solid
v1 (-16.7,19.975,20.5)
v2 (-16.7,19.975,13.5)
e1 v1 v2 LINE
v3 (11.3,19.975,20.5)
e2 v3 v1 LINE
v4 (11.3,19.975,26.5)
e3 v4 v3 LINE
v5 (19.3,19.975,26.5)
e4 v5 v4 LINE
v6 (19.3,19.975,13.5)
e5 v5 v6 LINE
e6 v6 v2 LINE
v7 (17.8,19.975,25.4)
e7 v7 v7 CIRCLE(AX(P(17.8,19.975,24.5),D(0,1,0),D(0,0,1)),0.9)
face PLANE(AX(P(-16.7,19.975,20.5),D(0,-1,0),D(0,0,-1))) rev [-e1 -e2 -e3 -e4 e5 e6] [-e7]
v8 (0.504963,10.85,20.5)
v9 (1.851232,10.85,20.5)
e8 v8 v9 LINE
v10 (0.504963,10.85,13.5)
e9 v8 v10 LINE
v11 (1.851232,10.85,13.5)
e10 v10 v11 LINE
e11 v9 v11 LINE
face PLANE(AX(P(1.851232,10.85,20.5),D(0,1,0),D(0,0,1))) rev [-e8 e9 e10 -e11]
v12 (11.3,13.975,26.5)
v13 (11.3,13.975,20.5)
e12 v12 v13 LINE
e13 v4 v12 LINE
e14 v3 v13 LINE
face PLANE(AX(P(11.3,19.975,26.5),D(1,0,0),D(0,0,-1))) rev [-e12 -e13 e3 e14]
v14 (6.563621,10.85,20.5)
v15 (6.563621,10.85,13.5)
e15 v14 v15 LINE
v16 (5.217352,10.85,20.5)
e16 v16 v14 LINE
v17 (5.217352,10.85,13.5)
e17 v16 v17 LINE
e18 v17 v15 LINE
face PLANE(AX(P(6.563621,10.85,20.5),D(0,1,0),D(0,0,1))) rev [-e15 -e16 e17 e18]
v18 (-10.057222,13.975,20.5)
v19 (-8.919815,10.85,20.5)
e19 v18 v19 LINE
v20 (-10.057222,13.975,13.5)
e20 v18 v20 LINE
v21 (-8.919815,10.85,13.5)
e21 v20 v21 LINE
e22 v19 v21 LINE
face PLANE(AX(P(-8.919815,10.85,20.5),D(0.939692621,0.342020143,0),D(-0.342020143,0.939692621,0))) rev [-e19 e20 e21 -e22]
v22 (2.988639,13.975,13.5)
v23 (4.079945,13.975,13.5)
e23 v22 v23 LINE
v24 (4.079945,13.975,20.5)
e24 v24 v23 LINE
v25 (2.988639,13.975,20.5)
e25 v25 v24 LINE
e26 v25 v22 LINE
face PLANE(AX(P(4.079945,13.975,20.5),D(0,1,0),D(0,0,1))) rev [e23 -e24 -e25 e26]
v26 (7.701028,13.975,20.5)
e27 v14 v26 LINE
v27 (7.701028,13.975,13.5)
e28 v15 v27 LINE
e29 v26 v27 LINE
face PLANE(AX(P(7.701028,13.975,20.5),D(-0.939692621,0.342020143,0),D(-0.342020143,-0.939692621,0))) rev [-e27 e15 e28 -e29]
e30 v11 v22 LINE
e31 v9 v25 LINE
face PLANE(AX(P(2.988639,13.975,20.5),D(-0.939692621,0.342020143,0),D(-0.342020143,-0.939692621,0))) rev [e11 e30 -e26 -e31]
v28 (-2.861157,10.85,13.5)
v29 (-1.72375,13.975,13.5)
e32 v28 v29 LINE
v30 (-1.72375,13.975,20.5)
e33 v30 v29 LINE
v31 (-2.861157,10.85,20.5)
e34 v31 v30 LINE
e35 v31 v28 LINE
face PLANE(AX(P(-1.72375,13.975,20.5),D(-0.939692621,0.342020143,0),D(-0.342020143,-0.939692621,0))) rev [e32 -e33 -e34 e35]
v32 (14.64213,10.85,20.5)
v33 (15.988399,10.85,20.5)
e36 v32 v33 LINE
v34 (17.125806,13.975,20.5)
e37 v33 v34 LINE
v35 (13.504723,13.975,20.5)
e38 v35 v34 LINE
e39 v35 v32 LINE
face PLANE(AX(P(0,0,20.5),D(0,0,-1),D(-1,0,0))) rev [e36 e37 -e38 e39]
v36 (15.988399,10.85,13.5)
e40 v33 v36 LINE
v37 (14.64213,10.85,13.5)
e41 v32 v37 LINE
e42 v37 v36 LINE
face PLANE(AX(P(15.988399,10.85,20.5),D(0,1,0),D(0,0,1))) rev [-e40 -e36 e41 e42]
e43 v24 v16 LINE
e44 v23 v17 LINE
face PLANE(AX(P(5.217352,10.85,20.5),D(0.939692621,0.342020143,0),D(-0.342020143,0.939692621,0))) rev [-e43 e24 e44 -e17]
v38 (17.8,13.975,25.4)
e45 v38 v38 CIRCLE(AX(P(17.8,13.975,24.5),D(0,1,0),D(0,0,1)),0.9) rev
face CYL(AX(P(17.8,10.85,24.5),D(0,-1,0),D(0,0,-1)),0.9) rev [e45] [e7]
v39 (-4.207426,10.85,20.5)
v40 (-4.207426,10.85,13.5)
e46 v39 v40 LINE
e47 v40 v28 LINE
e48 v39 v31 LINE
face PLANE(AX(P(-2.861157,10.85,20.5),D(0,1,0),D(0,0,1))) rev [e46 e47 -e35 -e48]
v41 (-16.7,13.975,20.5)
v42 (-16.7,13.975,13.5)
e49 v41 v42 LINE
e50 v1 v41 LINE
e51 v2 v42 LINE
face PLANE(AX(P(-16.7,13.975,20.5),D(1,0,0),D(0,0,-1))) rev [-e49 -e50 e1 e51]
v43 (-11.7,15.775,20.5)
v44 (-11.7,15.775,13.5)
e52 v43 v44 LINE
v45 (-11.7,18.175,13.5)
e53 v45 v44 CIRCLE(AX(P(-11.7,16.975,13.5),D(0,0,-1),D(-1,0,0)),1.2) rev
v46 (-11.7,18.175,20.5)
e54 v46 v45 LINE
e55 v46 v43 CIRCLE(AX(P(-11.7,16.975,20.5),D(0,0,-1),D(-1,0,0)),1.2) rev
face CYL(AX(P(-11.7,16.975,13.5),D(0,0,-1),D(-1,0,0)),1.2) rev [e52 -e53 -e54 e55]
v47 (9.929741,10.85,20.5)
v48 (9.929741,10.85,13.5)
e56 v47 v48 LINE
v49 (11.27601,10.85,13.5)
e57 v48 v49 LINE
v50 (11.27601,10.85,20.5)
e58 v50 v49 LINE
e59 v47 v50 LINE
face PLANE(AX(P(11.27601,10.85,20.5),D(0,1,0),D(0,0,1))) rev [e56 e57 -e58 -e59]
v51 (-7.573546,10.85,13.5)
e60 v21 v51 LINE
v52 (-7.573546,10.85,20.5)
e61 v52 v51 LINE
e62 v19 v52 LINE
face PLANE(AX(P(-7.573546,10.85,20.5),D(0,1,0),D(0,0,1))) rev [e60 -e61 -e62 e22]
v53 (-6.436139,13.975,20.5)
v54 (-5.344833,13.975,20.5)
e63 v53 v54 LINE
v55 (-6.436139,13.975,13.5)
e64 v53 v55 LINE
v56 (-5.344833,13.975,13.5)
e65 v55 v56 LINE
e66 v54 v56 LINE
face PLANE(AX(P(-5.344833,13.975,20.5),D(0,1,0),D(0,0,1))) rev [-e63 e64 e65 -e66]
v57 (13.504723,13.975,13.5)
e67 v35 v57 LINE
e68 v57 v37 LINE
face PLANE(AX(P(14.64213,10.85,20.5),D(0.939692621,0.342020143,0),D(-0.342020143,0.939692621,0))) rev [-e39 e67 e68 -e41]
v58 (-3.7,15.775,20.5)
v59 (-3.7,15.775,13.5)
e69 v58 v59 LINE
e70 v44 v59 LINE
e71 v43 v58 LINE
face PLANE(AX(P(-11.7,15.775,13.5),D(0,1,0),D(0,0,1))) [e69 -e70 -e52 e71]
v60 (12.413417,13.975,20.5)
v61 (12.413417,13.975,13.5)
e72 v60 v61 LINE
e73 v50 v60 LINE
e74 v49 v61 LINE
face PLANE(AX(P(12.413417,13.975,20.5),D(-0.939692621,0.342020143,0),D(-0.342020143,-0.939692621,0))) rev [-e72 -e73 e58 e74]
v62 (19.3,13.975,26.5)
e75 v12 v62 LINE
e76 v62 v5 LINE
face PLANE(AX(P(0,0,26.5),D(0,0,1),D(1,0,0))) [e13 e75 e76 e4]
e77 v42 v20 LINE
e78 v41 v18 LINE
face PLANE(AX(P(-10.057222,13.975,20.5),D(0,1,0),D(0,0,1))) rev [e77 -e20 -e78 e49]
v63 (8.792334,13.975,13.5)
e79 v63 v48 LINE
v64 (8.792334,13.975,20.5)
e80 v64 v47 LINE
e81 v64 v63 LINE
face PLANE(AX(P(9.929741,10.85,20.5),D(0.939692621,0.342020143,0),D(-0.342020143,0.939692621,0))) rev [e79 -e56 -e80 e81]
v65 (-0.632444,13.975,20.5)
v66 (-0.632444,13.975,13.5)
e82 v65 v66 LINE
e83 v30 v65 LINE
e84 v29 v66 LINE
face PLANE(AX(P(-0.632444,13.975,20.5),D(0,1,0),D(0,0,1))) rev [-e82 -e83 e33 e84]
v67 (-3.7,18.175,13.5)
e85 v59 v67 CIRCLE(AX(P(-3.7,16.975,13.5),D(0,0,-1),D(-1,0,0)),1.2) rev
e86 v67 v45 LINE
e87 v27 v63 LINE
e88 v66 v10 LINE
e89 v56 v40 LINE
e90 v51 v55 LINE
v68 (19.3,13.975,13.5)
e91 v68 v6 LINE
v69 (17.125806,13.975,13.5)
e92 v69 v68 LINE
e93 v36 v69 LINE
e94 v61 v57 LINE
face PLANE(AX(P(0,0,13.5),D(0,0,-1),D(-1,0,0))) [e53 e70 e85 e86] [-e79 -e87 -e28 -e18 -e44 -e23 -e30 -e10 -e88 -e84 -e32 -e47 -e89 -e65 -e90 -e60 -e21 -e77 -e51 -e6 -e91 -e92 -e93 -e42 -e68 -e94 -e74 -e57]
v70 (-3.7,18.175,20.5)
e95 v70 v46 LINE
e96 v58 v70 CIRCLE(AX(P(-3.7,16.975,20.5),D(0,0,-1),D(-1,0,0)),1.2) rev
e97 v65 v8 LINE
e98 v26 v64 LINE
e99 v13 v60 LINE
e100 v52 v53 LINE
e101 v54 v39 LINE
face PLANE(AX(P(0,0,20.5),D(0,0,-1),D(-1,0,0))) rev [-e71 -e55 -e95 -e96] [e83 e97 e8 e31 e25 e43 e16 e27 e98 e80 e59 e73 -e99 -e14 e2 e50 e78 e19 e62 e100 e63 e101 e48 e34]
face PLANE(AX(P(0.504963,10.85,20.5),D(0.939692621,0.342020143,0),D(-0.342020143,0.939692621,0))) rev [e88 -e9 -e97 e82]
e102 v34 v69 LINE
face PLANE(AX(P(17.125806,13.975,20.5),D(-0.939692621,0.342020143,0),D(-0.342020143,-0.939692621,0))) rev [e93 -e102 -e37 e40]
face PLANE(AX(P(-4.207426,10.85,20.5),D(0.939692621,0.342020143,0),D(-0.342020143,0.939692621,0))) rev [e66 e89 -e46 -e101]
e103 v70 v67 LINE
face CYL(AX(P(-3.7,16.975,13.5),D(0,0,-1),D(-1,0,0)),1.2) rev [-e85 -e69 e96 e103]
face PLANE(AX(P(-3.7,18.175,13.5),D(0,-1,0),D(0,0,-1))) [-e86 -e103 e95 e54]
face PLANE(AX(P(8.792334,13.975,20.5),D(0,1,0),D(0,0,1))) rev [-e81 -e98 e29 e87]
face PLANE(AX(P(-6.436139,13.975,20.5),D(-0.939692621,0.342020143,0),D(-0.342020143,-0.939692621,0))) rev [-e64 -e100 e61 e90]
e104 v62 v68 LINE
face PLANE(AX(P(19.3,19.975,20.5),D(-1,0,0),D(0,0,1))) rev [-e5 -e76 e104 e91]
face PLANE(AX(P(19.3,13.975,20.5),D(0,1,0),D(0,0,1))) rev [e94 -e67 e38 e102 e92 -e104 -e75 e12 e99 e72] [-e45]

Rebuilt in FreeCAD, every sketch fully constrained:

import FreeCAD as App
import Part
import Sketcher

V = App.Vector
Q = App.Units.Quantity

doc = App.newDocument("Part")
params = doc.addObject("Spreadsheet::Sheet", "Params")
for row, (alias, value) in enumerate([
    ("sketch1_width", "36 mm"),
    ("sketch1_height", "6 mm"),
    ("pad1_length", "7 mm"),
    ("sketch2_width", "8 mm"),
    ("sketch2_height", "6 mm"),
    ("pad2_length", "6 mm"),
    ("sketch3_diameter", "1.8 mm"),
    ("sketch4_width", "8 mm"),
    ("sketch4_height", "2.4 mm"),
    ("sketch5_diameter", "2.4 mm"),
], start=1):
    params.set(f"A{row}", alias)
    params.set(f"B{row}", "=" + value)
    params.setAlias(f"B{row}", alias)

body = doc.addObject("PartDesign::Body", "Body")

sketch1 = doc.addObject("Sketcher::SketchObject", "Sketch")
body.addObject(sketch1)
sketch1.AttachmentSupport = (doc.XY_Plane, [""])
sketch1.MapMode = "FlatFace"
sketch1.AttachmentOffset = App.Placement(V(0, 0, 13.5), App.Rotation())
sketch1.addGeometry([
    Part.LineSegment(V(19.3, 20, 0), V(-16.7, 20, 0)),
    Part.LineSegment(V(-16.7, 20, 0), V(-16.7, 14, 0)),
    Part.LineSegment(V(-16.7, 14, 0), V(-10.1, 14, 0)),
    Part.LineSegment(V(-10.1, 14, 0), V(-8.9, 10.8, 0)),
    Part.LineSegment(V(-8.9, 10.8, 0), V(-7.6, 10.8, 0)),
    Part.LineSegment(V(-7.6, 10.8, 0), V(-6.4, 14, 0)),
    Part.LineSegment(V(-6.4, 14, 0), V(-5.3, 14, 0)),
    Part.LineSegment(V(-5.3, 14, 0), V(-4.2, 10.8, 0)),
    Part.LineSegment(V(-4.2, 10.8, 0), V(-2.9, 10.8, 0)),
    Part.LineSegment(V(-2.9, 10.8, 0), V(-1.7, 14, 0)),
    Part.LineSegment(V(-1.7, 14, 0), V(-0.6, 14, 0)),
    Part.LineSegment(V(-0.6, 14, 0), V(0.5, 10.8, 0)),
    Part.LineSegment(V(0.5, 10.8, 0), V(1.9, 10.8, 0)),
    Part.LineSegment(V(1.9, 10.8, 0), V(3, 14, 0)),
    Part.LineSegment(V(3, 14, 0), V(4.1, 14, 0)),
    Part.LineSegment(V(4.1, 14, 0), V(5.2, 10.8, 0)),
    Part.LineSegment(V(5.2, 10.8, 0), V(6.6, 10.8, 0)),
    Part.LineSegment(V(6.6, 10.8, 0), V(7.7, 14, 0)),
    Part.LineSegment(V(7.7, 14, 0), V(8.8, 14, 0)),
    Part.LineSegment(V(8.8, 14, 0), V(9.9, 10.8, 0)),
    Part.LineSegment(V(9.9, 10.8, 0), V(11.3, 10.8, 0)),
    Part.LineSegment(V(11.3, 10.8, 0), V(12.4, 14, 0)),
    Part.LineSegment(V(12.4, 14, 0), V(13.5, 14, 0)),
    Part.LineSegment(V(13.5, 14, 0), V(14.6, 10.8, 0)),
    Part.LineSegment(V(14.6, 10.8, 0), V(16, 10.8, 0)),
    Part.LineSegment(V(16, 10.8, 0), V(17.1, 14, 0)),
    Part.LineSegment(V(17.1, 14, 0), V(19.3, 14, 0)),
    Part.LineSegment(V(19.3, 14, 0), V(19.3, 20, 0)),
], False)
sketch1.addConstraint([
    Sketcher.Constraint("Coincident", 0, 2, 1, 1),
    Sketcher.Constraint("Coincident", 1, 2, 2, 1),
    Sketcher.Constraint("Coincident", 2, 2, 3, 1),
    Sketcher.Constraint("Coincident", 3, 2, 4, 1),
    Sketcher.Constraint("Coincident", 4, 2, 5, 1),
    Sketcher.Constraint("Coincident", 5, 2, 6, 1),
    Sketcher.Constraint("Coincident", 6, 2, 7, 1),
    Sketcher.Constraint("Coincident", 7, 2, 8, 1),
    Sketcher.Constraint("Coincident", 8, 2, 9, 1),
    Sketcher.Constraint("Coincident", 9, 2, 10, 1),
    Sketcher.Constraint("Coincident", 10, 2, 11, 1),
    Sketcher.Constraint("Coincident", 11, 2, 12, 1),
    Sketcher.Constraint("Coincident", 12, 2, 13, 1),
    Sketcher.Constraint("Coincident", 13, 2, 14, 1),
    Sketcher.Constraint("Coincident", 14, 2, 15, 1),
    Sketcher.Constraint("Coincident", 15, 2, 16, 1),
    Sketcher.Constraint("Coincident", 16, 2, 17, 1),
    Sketcher.Constraint("Coincident", 17, 2, 18, 1),
    Sketcher.Constraint("Coincident", 18, 2, 19, 1),
    Sketcher.Constraint("Coincident", 19, 2, 20, 1),
    Sketcher.Constraint("Coincident", 20, 2, 21, 1),
    Sketcher.Constraint("Coincident", 21, 2, 22, 1),
    Sketcher.Constraint("Coincident", 22, 2, 23, 1),
    Sketcher.Constraint("Coincident", 23, 2, 24, 1),
    Sketcher.Constraint("Coincident", 24, 2, 25, 1),
    Sketcher.Constraint("Coincident", 25, 2, 26, 1),
    Sketcher.Constraint("Coincident", 26, 2, 27, 1),
    Sketcher.Constraint("Coincident", 27, 2, 0, 1),
    Sketcher.Constraint("Horizontal", 0),
    Sketcher.Constraint("Vertical", 1),
    Sketcher.Constraint("Horizontal", 2),
    Sketcher.Constraint("Horizontal", 4),
    Sketcher.Constraint("Horizontal", 6),
    Sketcher.Constraint("Horizontal", 8),
    Sketcher.Constraint("Horizontal", 10),
    Sketcher.Constraint("Horizontal", 12),
    Sketcher.Constraint("Horizontal", 14),
    Sketcher.Constraint("Horizontal", 16),
    Sketcher.Constraint("Horizontal", 18),
    Sketcher.Constraint("Horizontal", 20),
    Sketcher.Constraint("Horizontal", 22),
    Sketcher.Constraint("Horizontal", 24),
    Sketcher.Constraint("Horizontal", 26),
    Sketcher.Constraint("Vertical", 27),
    Sketcher.Constraint("Parallel", 3, 7),
    Sketcher.Constraint("Parallel", 5, 9),
    Sketcher.Constraint("Parallel", 7, 11),
    Sketcher.Constraint("Parallel", 9, 13),
    Sketcher.Constraint("Parallel", 11, 15),
    Sketcher.Constraint("Parallel", 13, 17),
    Sketcher.Constraint("Parallel", 15, 19),
    Sketcher.Constraint("Parallel", 17, 21),
    Sketcher.Constraint("Parallel", 19, 23),
    Sketcher.Constraint("Parallel", 21, 25),
    Sketcher.Constraint("Horizontal", 2, 2, 5, 2),
    Sketcher.Constraint("Horizontal", 4, 2, 7, 2),
    Sketcher.Constraint("Horizontal", 6, 2, 9, 2),
    Sketcher.Constraint("Horizontal", 8, 2, 11, 2),
    Sketcher.Constraint("Horizontal", 10, 2, 13, 2),
    Sketcher.Constraint("Horizontal", 12, 2, 15, 2),
    Sketcher.Constraint("Horizontal", 14, 2, 17, 2),
    Sketcher.Constraint("Horizontal", 16, 2, 19, 2),
    Sketcher.Constraint("Horizontal", 18, 2, 21, 2),
    Sketcher.Constraint("Horizontal", 20, 2, 23, 2),
    Sketcher.Constraint("Horizontal", 22, 2, 25, 2),
    Sketcher.Constraint("Equal", 4, 8),
    Sketcher.Constraint("Equal", 6, 10),
    Sketcher.Constraint("Equal", 8, 12),
    Sketcher.Constraint("Equal", 10, 14),
    Sketcher.Constraint("Equal", 12, 16),
    Sketcher.Constraint("Equal", 14, 18),
    Sketcher.Constraint("Equal", 16, 20),
    Sketcher.Constraint("Equal", 18, 22),
    Sketcher.Constraint("Equal", 20, 24),
    Sketcher.Constraint("Equal", 3, 5),
    Sketcher.Constraint("DistanceX", 0, 2, 0, 1, 36.0),
    Sketcher.Constraint("DistanceY", 1, 2, 1, 1, 6.0),
    Sketcher.Constraint("Angle", 3, Q("-70 deg")),
    Sketcher.Constraint("DistanceX", 0, 2, -1, 1, 16.7),
    Sketcher.Constraint("DistanceY", -1, 1, 3, 2, 10.85),
    Sketcher.Constraint("DistanceY", -1, 1, 0, 2, 19.975),
    Sketcher.Constraint("DistanceX", 4, 1, 4, 2, 1.346269),
    Sketcher.Constraint("DistanceX", -1, 1, 24, 2, 15.988399),
    Sketcher.Constraint("DistanceX", 2, 1, 2, 2, 6.642778),
])
sketch1.setExpression("Constraints[75]", "Params.sketch1_width")
sketch1.setExpression("Constraints[76]", "Params.sketch1_height")
pad1 = doc.addObject("PartDesign::Pad", "Pad")
body.addObject(pad1)
pad1.Profile = sketch1
pad1.setExpression("Length", "Params.pad1_length")

sketch2 = doc.addObject("Sketcher::SketchObject", "Sketch001")
body.addObject(sketch2)
sketch2.AttachmentSupport = (doc.XY_Plane, [""])
sketch2.MapMode = "FlatFace"
sketch2.AttachmentOffset = App.Placement(V(0, 0, 20.5), App.Rotation())
sketch2.addGeometry([
    Part.LineSegment(V(11, 20, 0), V(11, 14, 0)),
    Part.LineSegment(V(11, 14, 0), V(19, 14, 0)),
    Part.LineSegment(V(19, 14, 0), V(19, 20, 0)),
    Part.LineSegment(V(19, 20, 0), V(11, 20, 0)),
], False)
sketch2.addConstraint([
    Sketcher.Constraint("Coincident", 0, 2, 1, 1),
    Sketcher.Constraint("Coincident", 1, 2, 2, 1),
    Sketcher.Constraint("Coincident", 2, 2, 3, 1),
    Sketcher.Constraint("Coincident", 3, 2, 0, 1),
    Sketcher.Constraint("Vertical", 0),
    Sketcher.Constraint("Horizontal", 1),
    Sketcher.Constraint("Vertical", 2),
    Sketcher.Constraint("Horizontal", 3),
    Sketcher.Constraint("DistanceX", 1, 1, 1, 2, 8.0),
    Sketcher.Constraint("DistanceY", 0, 2, 0, 1, 6.0),
    Sketcher.Constraint("DistanceX", -1, 1, 0, 2, 11.3),
    Sketcher.Constraint("DistanceY", -1, 1, 0, 2, 13.975),
])
sketch2.setExpression("Constraints[8]", "Params.sketch2_width")
sketch2.setExpression("Constraints[9]", "Params.sketch2_height")
pad2 = doc.addObject("PartDesign::Pad", "Pad001")
body.addObject(pad2)
pad2.Profile = sketch2
pad2.setExpression("Length", "Params.pad2_length")

sketch3 = doc.addObject("Sketcher::SketchObject", "Sketch002")
body.addObject(sketch3)
sketch3.AttachmentSupport = (doc.XZ_Plane, [""])
sketch3.MapMode = "FlatFace"
sketch3.addGeometry(Part.Circle(V(17.8, 24.5, 0), V(0, 0, 1), 0.9), False)
sketch3.addConstraint([
    Sketcher.Constraint("Diameter", 0, 1.8),
    Sketcher.Constraint("DistanceX", -1, 1, 0, 3, 17.8),
    Sketcher.Constraint("DistanceY", -1, 1, 0, 3, 24.5),
])
sketch3.setExpression("Constraints[0]", "Params.sketch3_diameter")
pocket1 = doc.addObject("PartDesign::Pocket", "Pocket")
body.addObject(pocket1)
pocket1.Profile = sketch3
pocket1.Type = "ThroughAll"
pocket1.Midplane = True

sketch4 = doc.addObject("Sketcher::SketchObject", "Sketch003")
body.addObject(sketch4)
sketch4.AttachmentSupport = (doc.XY_Plane, [""])
sketch4.MapMode = "FlatFace"
sketch4.addGeometry([
    Part.LineSegment(V(-11.7, 18.2, 0), V(-11.7, 15.8, 0)),
    Part.LineSegment(V(-11.7, 15.8, 0), V(-3.7, 15.8, 0)),
    Part.LineSegment(V(-3.7, 15.8, 0), V(-3.7, 18.2, 0)),
    Part.LineSegment(V(-3.7, 18.2, 0), V(-11.7, 18.2, 0)),
], False)
sketch4.addConstraint([
    Sketcher.Constraint("Coincident", 0, 2, 1, 1),
    Sketcher.Constraint("Coincident", 1, 2, 2, 1),
    Sketcher.Constraint("Coincident", 2, 2, 3, 1),
    Sketcher.Constraint("Coincident", 3, 2, 0, 1),
    Sketcher.Constraint("Vertical", 0),
    Sketcher.Constraint("Horizontal", 1),
    Sketcher.Constraint("Vertical", 2),
    Sketcher.Constraint("Horizontal", 3),
    Sketcher.Constraint("DistanceX", 1, 1, 1, 2, 8.0),
    Sketcher.Constraint("DistanceY", 0, 2, 0, 1, 2.4),
    Sketcher.Constraint("DistanceX", 0, 2, -1, 1, 11.7),
    Sketcher.Constraint("DistanceY", -1, 1, 0, 2, 15.775),
])
sketch4.setExpression("Constraints[8]", "Params.sketch4_width")
sketch4.setExpression("Constraints[9]", "Params.sketch4_height")
pocket2 = doc.addObject("PartDesign::Pocket", "Pocket001")
body.addObject(pocket2)
pocket2.Profile = sketch4
pocket2.Type = "ThroughAll"
pocket2.Midplane = True

sketch5 = doc.addObject("Sketcher::SketchObject", "Sketch004")
body.addObject(sketch5)
sketch5.AttachmentSupport = (doc.XY_Plane, [""])
sketch5.MapMode = "FlatFace"
sketch5.addGeometry([
    Part.Circle(V(-11.7, 17, 0), V(0, 0, 1), 1.2),
    Part.Circle(V(-3.7, 17, 0), V(0, 0, 1), 1.2),
], False)
sketch5.addConstraint([
    Sketcher.Constraint("Equal", 0, 1),
    Sketcher.Constraint("Horizontal", 0, 3, 1, 3),
    Sketcher.Constraint("Diameter", 0, 2.4),
    Sketcher.Constraint("DistanceX", 0, 3, 1, 3, 8.0),
    Sketcher.Constraint("DistanceX", 0, 3, -1, 1, 11.7),
    Sketcher.Constraint("DistanceY", -1, 1, 0, 3, 16.975),
])
sketch5.setExpression("Constraints[2]", "Params.sketch5_diameter")
pocket3 = doc.addObject("PartDesign::Pocket", "Pocket002")
body.addObject(pocket3)
pocket3.Profile = sketch5
pocket3.Type = "ThroughAll"
pocket3.Midplane = True

doc.recompute()
